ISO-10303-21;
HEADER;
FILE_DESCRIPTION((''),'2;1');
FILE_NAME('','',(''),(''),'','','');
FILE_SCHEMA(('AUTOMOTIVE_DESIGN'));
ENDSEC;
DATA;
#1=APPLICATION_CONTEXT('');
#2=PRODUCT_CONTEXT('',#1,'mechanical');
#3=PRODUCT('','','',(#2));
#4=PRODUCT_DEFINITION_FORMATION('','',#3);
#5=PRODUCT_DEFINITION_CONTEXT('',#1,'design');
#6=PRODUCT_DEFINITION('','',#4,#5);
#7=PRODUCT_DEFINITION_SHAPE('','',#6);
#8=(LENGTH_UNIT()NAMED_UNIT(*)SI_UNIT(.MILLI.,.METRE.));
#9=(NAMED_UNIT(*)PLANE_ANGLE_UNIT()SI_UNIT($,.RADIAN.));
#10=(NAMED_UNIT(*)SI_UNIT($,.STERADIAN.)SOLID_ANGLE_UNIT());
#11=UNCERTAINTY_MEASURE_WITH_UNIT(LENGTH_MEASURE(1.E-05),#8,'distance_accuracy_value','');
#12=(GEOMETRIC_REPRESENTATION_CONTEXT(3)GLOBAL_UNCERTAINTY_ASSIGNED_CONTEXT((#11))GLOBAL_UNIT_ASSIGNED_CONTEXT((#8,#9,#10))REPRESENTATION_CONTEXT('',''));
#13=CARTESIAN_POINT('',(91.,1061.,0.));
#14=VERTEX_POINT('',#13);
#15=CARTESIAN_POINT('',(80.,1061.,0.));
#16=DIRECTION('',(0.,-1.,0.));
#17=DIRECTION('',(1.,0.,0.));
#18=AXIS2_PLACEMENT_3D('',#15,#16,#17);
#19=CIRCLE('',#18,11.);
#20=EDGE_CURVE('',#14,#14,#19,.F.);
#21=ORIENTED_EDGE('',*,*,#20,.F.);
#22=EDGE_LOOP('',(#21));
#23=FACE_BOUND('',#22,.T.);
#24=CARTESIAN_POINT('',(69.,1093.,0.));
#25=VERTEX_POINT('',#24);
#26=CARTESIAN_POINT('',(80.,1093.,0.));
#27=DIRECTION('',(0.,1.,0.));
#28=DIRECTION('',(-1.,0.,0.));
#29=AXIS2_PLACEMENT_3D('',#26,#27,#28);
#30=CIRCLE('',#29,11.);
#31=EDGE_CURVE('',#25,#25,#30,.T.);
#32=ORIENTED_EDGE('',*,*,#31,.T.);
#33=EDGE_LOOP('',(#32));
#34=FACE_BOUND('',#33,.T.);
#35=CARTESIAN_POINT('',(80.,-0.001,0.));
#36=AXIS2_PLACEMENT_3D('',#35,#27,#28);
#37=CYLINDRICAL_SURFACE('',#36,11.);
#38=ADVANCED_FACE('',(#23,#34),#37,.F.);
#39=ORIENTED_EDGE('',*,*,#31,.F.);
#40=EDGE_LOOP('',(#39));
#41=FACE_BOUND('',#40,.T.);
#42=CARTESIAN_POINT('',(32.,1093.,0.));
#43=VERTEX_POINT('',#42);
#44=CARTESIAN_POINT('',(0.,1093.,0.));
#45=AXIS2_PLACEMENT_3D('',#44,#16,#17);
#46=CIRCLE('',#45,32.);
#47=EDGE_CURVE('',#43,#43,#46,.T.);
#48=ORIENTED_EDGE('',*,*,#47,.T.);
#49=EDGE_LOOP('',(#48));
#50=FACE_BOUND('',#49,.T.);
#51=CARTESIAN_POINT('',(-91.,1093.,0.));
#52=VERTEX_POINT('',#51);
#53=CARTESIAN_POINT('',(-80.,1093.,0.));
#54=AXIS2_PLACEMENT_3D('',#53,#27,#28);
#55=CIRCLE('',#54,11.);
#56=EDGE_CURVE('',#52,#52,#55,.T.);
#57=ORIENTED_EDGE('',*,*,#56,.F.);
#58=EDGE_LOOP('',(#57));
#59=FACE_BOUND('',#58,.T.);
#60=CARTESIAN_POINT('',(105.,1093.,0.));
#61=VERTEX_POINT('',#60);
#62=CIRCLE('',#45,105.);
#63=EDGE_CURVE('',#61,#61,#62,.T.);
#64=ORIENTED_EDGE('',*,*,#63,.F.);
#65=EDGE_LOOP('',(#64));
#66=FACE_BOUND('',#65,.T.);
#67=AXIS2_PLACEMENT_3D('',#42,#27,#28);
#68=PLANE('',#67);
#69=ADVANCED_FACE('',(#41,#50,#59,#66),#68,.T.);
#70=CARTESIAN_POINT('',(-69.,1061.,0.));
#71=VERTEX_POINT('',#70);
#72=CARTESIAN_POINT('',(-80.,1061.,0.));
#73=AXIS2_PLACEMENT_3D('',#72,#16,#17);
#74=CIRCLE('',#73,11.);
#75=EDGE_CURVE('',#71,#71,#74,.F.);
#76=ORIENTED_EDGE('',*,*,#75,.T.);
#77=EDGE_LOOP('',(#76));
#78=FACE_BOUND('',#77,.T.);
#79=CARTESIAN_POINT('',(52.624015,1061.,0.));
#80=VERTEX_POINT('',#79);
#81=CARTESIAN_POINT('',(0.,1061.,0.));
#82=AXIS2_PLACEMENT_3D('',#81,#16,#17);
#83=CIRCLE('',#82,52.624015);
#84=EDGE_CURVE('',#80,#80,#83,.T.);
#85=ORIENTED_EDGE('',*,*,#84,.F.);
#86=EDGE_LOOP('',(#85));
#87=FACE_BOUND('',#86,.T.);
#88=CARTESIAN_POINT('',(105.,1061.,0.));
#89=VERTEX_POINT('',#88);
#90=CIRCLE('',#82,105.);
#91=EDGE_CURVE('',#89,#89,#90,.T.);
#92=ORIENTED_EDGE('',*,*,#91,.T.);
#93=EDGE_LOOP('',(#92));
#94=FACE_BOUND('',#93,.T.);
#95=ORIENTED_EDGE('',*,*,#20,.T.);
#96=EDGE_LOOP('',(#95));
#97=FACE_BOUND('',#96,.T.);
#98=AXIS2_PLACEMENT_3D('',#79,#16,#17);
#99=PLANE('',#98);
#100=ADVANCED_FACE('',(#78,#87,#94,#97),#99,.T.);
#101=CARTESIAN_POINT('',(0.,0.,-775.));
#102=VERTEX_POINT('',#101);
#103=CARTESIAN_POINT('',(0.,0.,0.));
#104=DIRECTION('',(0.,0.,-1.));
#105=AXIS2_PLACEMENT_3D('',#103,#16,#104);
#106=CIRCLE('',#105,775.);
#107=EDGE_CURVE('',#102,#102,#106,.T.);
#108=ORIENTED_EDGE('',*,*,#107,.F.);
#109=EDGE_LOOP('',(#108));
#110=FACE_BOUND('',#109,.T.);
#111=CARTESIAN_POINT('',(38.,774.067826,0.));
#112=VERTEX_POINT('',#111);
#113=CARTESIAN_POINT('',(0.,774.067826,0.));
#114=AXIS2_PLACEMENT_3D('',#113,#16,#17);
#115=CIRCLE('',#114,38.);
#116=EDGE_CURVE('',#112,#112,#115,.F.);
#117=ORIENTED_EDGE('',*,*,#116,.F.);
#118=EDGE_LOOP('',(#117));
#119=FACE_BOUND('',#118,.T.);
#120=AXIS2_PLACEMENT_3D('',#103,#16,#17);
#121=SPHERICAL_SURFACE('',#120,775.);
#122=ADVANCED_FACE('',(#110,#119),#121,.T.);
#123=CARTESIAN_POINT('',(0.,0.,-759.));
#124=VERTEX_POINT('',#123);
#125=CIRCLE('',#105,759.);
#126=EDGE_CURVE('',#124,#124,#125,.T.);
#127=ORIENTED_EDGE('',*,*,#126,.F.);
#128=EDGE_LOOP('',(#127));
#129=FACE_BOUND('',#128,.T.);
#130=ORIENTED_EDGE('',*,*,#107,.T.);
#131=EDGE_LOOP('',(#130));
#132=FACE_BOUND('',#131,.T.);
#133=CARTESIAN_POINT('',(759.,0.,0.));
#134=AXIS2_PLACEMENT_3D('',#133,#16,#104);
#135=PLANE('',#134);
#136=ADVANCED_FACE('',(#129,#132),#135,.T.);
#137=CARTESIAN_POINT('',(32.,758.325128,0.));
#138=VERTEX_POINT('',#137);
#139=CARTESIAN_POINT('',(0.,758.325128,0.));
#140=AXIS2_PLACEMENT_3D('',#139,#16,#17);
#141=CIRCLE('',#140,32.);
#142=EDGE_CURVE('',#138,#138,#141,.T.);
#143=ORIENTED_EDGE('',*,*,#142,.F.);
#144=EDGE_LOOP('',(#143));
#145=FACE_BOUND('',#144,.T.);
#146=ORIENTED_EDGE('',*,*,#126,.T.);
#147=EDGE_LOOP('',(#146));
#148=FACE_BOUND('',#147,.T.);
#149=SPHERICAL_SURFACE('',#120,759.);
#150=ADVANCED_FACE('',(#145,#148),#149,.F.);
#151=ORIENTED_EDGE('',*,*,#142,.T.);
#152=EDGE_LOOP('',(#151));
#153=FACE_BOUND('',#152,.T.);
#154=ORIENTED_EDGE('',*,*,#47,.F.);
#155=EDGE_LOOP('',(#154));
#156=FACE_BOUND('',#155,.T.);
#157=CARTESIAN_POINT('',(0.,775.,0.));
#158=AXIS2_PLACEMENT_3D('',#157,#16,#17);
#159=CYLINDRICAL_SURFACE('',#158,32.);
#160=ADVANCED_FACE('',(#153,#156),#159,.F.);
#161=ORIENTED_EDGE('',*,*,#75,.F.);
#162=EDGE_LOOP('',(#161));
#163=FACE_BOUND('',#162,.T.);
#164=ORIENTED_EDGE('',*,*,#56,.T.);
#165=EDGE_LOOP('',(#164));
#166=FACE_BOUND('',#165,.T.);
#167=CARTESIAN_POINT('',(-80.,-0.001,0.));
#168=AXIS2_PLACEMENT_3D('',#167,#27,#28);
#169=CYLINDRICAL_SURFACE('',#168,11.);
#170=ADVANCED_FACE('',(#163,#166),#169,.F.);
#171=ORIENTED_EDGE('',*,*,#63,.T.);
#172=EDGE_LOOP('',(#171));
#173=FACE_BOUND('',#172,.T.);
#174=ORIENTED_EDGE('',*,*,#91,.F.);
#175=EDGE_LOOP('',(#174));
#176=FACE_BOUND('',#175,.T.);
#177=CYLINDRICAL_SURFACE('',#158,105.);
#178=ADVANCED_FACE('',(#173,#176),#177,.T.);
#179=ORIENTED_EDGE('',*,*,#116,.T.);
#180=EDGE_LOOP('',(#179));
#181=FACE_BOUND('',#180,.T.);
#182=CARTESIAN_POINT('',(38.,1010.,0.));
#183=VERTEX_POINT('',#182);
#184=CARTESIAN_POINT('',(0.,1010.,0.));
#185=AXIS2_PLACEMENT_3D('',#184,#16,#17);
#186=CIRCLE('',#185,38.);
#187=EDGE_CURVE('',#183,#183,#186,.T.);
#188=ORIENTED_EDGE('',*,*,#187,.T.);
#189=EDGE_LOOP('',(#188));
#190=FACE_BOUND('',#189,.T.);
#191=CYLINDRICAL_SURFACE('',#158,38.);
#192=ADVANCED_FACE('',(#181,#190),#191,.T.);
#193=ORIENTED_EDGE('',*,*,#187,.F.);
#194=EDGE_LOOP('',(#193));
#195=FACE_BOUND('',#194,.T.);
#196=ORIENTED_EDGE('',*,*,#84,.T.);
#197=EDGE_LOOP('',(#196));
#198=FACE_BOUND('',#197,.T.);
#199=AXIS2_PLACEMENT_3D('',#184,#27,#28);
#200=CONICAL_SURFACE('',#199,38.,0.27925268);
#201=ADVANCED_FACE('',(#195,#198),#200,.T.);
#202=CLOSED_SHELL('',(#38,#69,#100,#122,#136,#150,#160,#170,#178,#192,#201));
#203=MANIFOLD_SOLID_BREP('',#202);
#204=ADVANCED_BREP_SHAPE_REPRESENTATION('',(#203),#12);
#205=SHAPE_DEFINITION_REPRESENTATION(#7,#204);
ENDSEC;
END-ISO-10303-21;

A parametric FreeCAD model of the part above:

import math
import FreeCAD as App
import Part
import Sketcher

V = App.Vector
Q = App.Units.Quantity


def add_polygon(sketch, points):
    """Adds a closed chain of lines whose ends are joined by coincident constraints."""
    first, n = sketch.GeometryCount, len(points)
    for a, b in zip(points, points[1:] + points[:1]):
        sketch.addGeometry(Part.LineSegment(App.Vector(*a, 0), App.Vector(*b, 0)), False)
    for i in range(n):
        sketch.addConstraint(Sketcher.Constraint("Coincident", first + i, 2, first + (i + 1) % n, 1))

doc = App.newDocument("Part")
params = doc.addObject("Spreadsheet::Sheet", "Params")
for row, (alias, value) in enumerate([
    ("sketch1_radius", "759 mm"),
    ("sketch1_radius2", "775 mm"),
    ("revolution_angle", "360 deg"),
    ("sketch2_width", "73 mm"),
    ("sketch2_width2", "6 mm"),
    ("sketch2_height", "32 mm"),
    ("revolution2_angle", "360 deg"),
    ("sketch3_diameter", "22 mm"),
    ("sketch4_diameter", "22 mm"),
    ("sketch5_diameter", "64 mm"),
    ("pocket3_length", "500 mm"),
], start=1):
    params.set(f"A{row}", alias)
    params.set(f"B{row}", "=" + value)
    params.setAlias(f"B{row}", alias)

body = doc.addObject("PartDesign::Body", "Body")

sketch1 = body.newObject("Sketcher::SketchObject", "Sketch")
sketch1.AttachmentSupport = (doc.getObject("XY_Plane"), [""])
sketch1.MapMode = "FlatFace"
sketch1.addGeometry(Part.LineSegment(V(0, 775, 0), V(0, 759, 0)), False)
sketch1.addGeometry(Part.ArcOfCircle(Part.Circle(V(0, 0, 0), V(0, 0, 1), 759), math.radians(0), math.radians(90)), False)
sketch1.addGeometry(Part.LineSegment(V(759, 0, 0), V(775, 0, 0)), False)
sketch1.addGeometry(Part.ArcOfCircle(Part.Circle(V(0, 0, 0), V(0, 0, 1), 775), math.radians(0), math.radians(90)), False)
sketch1.addConstraint(Sketcher.Constraint("Coincident", 0, 2, 1, 2))
sketch1.addConstraint(Sketcher.Constraint("Coincident", 1, 1, 2, 1))
sketch1.addConstraint(Sketcher.Constraint("Coincident", 2, 2, 3, 1))
sketch1.addConstraint(Sketcher.Constraint("Coincident", 3, 2, 0, 1))
sketch1.addConstraint(Sketcher.Constraint("Vertical", 0))
sketch1.addConstraint(Sketcher.Constraint("Horizontal", 2))
sketch1.addConstraint(Sketcher.Constraint("Coincident", 1, 3, -1, 1))
sketch1.addConstraint(Sketcher.Constraint("Coincident", 3, 3, -1, 1))
sketch1.addConstraint(Sketcher.Constraint("PointOnObject", 0, 2, -2))
sketch1.addConstraint(Sketcher.Constraint("PointOnObject", 2, 2, -1))
sketch1.addConstraint(Sketcher.Constraint("Radius", 1, Q("759 mm")))
sketch1.addConstraint(Sketcher.Constraint("Radius", 3, Q("775 mm")))
sketch1.setExpression("Constraints[10]", "Params.sketch1_radius")
sketch1.setExpression("Constraints[11]", "Params.sketch1_radius2")
revolution = body.newObject("PartDesign::Revolution", "Revolution")
revolution.Profile = sketch1
revolution.ReferenceAxis = (sketch1, ["V_Axis"])
revolution.setExpression("Angle", "Params.revolution_angle")

sketch2 = body.newObject("Sketcher::SketchObject", "Sketch001")
sketch2.AttachmentSupport = (doc.getObject("XY_Plane"), [""])
sketch2.MapMode = "FlatFace"
add_polygon(sketch2, [(105, 1061), (105, 1093), (32, 1093), (32, 774), (38, 774), (38, 1010), (53, 1061)])
sketch2.addConstraint(Sketcher.Constraint("Vertical", 0))
sketch2.addConstraint(Sketcher.Constraint("Horizontal", 1))
sketch2.addConstraint(Sketcher.Constraint("Vertical", 2))
sketch2.addConstraint(Sketcher.Constraint("Horizontal", 3))
sketch2.addConstraint(Sketcher.Constraint("Vertical", 4))
sketch2.addConstraint(Sketcher.Constraint("Horizontal", 6))
sketch2.addConstraint(Sketcher.Constraint("DistanceX", 1, 2, 1, 1, Q("73 mm")))
sketch2.addConstraint(Sketcher.Constraint("DistanceX", 3, 1, 3, 2, Q("6 mm")))
sketch2.addConstraint(Sketcher.Constraint("DistanceY", 0, 1, 0, 2, Q("32 mm")))
sketch2.addConstraint(Sketcher.Constraint("Angle", 5, Q("74 deg")))
sketch2.addConstraint(Sketcher.Constraint("DistanceX", -1, 1, 0, 2, Q("105 mm")))
sketch2.addConstraint(Sketcher.Constraint("DistanceY", -1, 1, 0, 2, Q("1093 mm")))
sketch2.addConstraint(Sketcher.Constraint("DistanceY", -1, 1, 4, 2, Q("1010 mm")))
sketch2.addConstraint(Sketcher.Constraint("DistanceY", 2, 2, 2, 1, Q("318.932174 mm")))
sketch2.setExpression("Constraints[13]", "Params.sketch2_width")
sketch2.setExpression("Constraints[14]", "Params.sketch2_width2")
sketch2.setExpression("Constraints[15]", "Params.sketch2_height")
revolution2 = body.newObject("PartDesign::Revolution", "Revolution001")
revolution2.Profile = sketch2
revolution2.ReferenceAxis = (sketch2, ["V_Axis"])
revolution2.setExpression("Angle", "Params.revolution2_angle")

sketch3 = body.newObject("Sketcher::SketchObject", "Sketch002")
sketch3.AttachmentSupport = (doc.getObject("XZ_Plane"), [""])
sketch3.MapMode = "FlatFace"
sketch3.AttachmentOffset = App.Placement(V(0, 0, -1093), App.Rotation())
sketch3.addGeometry(Part.Circle(V(-80, 0, 0), V(0, 0, 1), 11), False)
sketch3.addConstraint(Sketcher.Constraint("PointOnObject", 0, 3, -1))
sketch3.addConstraint(Sketcher.Constraint("Diameter", 0, Q("22 mm")))
sketch3.addConstraint(Sketcher.Constraint("DistanceX", 0, 3, -1, 1, Q("80 mm")))
sketch3.setExpression("Constraints[1]", "Params.sketch3_diameter")
pocket1 = body.newObject("PartDesign::Pocket", "Pocket")
pocket1.Profile = sketch3
pocket1.Type = "UpToFirst"
pocket1.Reversed = True

sketch4 = body.newObject("Sketcher::SketchObject", "Sketch003")
sketch4.AttachmentSupport = (doc.getObject("XZ_Plane"), [""])
sketch4.MapMode = "FlatFace"
sketch4.AttachmentOffset = App.Placement(V(0, 0, -1093), App.Rotation())
sketch4.addGeometry(Part.Circle(V(80, 0, 0), V(0, 0, 1), 11), False)
sketch4.addConstraint(Sketcher.Constraint("PointOnObject", 0, 3, -1))
sketch4.addConstraint(Sketcher.Constraint("Diameter", 0, Q("22 mm")))
sketch4.addConstraint(Sketcher.Constraint("DistanceX", -1, 1, 0, 3, Q("80 mm")))
sketch4.setExpression("Constraints[1]", "Params.sketch4_diameter")
pocket2 = body.newObject("PartDesign::Pocket", "Pocket001")
pocket2.Profile = sketch4
pocket2.Type = "UpToFirst"
pocket2.Reversed = True

sketch5 = body.newObject("Sketcher::SketchObject", "Sketch004")
sketch5.AttachmentSupport = (doc.getObject("XZ_Plane"), [""])
sketch5.MapMode = "FlatFace"
sketch5.AttachmentOffset = App.Placement(V(0, 0, -1093), App.Rotation())
sketch5.addGeometry(Part.Circle(V(0, 0, 0), V(0, 0, 1), 32), False)
sketch5.addConstraint(Sketcher.Constraint("Coincident", 0, 3, -1, 1))
sketch5.addConstraint(Sketcher.Constraint("Diameter", 0, Q("64 mm")))
sketch5.setExpression("Constraints[1]", "Params.sketch5_diameter")
pocket3 = body.newObject("PartDesign::Pocket", "Pocket002")
pocket3.Profile = sketch5
pocket3.setExpression("Length", "Params.pocket3_length")
pocket3.Reversed = True

doc.recompute()
